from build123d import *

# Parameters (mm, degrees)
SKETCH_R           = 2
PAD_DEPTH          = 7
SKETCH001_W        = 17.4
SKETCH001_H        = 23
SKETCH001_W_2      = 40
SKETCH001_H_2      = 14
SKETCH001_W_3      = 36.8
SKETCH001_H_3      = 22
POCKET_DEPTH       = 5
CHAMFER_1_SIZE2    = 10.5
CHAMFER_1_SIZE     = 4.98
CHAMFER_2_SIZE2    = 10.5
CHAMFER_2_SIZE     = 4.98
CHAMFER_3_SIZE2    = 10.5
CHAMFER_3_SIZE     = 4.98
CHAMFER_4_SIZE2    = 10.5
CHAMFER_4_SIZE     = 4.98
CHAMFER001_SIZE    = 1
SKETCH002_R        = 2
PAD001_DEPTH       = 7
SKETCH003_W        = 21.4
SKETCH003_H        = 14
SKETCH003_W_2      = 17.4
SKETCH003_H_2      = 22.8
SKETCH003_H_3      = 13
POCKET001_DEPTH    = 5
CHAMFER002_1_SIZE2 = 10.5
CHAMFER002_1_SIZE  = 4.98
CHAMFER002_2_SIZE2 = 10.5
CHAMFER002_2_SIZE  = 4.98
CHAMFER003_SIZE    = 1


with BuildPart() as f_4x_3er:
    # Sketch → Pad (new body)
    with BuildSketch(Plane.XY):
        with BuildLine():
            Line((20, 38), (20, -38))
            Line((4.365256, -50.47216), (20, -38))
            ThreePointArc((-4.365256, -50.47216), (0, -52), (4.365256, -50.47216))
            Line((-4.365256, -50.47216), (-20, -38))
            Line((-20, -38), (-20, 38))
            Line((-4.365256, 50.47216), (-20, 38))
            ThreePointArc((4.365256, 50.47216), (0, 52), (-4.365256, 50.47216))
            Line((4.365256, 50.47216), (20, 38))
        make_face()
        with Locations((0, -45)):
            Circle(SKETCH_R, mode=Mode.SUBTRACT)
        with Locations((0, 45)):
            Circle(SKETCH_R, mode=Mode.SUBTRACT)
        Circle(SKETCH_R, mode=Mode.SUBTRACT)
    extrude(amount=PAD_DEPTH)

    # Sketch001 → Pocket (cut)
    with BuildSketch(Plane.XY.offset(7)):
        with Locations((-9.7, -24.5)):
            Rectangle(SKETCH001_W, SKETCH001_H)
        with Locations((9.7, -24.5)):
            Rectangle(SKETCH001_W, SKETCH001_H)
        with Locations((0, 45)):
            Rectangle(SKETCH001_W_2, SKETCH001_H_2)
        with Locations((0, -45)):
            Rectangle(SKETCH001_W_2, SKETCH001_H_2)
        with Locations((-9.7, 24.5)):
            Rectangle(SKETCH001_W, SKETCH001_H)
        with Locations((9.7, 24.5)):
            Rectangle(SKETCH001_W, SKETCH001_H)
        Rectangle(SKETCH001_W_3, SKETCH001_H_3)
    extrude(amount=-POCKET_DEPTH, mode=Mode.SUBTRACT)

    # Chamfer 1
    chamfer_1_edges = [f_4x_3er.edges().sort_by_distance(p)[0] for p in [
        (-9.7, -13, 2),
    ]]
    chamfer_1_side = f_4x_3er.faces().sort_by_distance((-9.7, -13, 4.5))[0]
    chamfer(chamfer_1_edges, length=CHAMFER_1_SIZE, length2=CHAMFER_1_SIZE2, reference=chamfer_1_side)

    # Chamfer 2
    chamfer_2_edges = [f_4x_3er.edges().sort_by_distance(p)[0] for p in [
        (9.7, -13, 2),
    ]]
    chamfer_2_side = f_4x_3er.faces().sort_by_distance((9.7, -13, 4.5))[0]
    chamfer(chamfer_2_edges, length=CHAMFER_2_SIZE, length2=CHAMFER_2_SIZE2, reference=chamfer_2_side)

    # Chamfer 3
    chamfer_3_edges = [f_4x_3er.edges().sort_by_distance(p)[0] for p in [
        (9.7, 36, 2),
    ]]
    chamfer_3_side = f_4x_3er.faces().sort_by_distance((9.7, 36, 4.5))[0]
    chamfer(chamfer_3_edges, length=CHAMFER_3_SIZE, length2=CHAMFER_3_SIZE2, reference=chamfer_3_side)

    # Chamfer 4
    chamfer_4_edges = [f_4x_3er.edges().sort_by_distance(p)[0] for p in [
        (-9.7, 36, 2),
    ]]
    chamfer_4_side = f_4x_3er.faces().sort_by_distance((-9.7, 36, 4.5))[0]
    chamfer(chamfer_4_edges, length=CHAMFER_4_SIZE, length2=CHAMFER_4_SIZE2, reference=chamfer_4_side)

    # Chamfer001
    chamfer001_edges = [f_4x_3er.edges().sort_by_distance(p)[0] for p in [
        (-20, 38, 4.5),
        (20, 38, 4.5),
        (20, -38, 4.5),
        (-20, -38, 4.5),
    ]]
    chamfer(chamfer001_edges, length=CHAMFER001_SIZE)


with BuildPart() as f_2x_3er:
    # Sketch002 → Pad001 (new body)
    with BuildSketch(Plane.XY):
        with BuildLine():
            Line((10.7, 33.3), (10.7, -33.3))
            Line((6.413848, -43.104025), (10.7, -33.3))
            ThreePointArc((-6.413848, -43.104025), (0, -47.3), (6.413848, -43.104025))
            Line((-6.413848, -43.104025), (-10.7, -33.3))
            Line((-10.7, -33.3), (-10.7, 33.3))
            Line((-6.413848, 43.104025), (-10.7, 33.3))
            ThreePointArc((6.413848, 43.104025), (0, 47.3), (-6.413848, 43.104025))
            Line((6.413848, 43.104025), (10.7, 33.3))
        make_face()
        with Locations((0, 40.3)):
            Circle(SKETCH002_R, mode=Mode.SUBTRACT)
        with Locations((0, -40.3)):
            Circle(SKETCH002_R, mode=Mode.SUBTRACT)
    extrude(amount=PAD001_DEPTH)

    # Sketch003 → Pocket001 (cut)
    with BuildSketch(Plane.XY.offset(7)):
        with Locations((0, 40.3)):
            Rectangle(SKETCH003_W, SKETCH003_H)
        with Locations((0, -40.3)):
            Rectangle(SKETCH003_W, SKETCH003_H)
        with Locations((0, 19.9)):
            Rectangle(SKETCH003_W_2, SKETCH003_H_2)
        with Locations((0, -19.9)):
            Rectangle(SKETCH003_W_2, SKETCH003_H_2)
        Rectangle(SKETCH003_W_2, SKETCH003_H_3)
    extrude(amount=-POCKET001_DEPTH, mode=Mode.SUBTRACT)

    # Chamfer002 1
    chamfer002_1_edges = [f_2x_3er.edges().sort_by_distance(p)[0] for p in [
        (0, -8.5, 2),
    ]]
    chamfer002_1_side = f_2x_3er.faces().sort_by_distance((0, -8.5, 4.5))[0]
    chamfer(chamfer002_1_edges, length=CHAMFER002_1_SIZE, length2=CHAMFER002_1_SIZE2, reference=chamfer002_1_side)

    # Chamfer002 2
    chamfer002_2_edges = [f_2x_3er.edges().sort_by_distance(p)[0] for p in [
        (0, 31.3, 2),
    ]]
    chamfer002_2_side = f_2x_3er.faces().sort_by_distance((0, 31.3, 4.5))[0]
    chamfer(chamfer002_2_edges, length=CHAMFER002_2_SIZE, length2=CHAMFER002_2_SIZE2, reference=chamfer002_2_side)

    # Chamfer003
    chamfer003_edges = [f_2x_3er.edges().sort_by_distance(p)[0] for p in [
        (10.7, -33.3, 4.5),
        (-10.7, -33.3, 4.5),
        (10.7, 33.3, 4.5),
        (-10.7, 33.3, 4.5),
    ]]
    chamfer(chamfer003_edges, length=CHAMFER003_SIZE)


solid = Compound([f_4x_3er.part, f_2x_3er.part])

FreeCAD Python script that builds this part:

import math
import FreeCAD as App
import Part
import Sketcher

V = App.Vector


def edges_at(feature, points):
    """Names of the edges that pass closest to the given points."""
    edges = feature.Shape.Edges
    near = lambda p: min(range(len(edges)), key=lambda i: edges[i].distToShape(Part.Vertex(*p))[0])
    return sorted({f"Edge{near(p) + 1}" for p in points})

doc = App.newDocument("Part")
params = doc.addObject("Spreadsheet::Sheet", "Params")
for row, (alias, value) in enumerate([
    ("sketch1_diameter", "4 mm"),
    ("sketch1_radius", "6.999998 mm"),
    ("sketch1_height", "76 mm"),
    ("sketch1_length", "20 mm"),
    ("pad1_length", "7 mm"),
    ("sketch2_width", "40 mm"),
    ("sketch2_height", "23 mm"),
    ("sketch2_height2", "14 mm"),
    ("sketch2_height3", "22 mm"),
    ("sketch2_width2", "17.4 mm"),
    ("pocket1_length", "5 mm"),
    ("chamfer_size", "4.98 mm"),
    ("chamfer_size2", "10.5 mm"),
    ("chamfer2_size", "4.98 mm"),
    ("chamfer2_size2", "10.5 mm"),
    ("chamfer3_size", "4.98 mm"),
    ("chamfer3_size2", "10.5 mm"),
    ("chamfer4_size", "4.98 mm"),
    ("chamfer4_size2", "10.5 mm"),
    ("chamfer5_size", "1 mm"),
    ("sketch3_diameter", "4 mm"),
    ("sketch3_radius", "7 mm"),
    ("sketch3_height", "66.6 mm"),
    ("sketch3_length", "10.7 mm"),
    ("pad2_length", "7 mm"),
    ("sketch4_height", "14 mm"),
    ("sketch4_height2", "13 mm"),
    ("sketch4_width", "21.4 mm"),
    ("sketch4_width2", "17.4 mm"),
    ("sketch4_height3", "22.8 mm"),
    ("pocket2_length", "5 mm"),
    ("chamfer6_size", "4.98 mm"),
    ("chamfer6_size2", "10.5 mm"),
    ("chamfer7_size", "4.98 mm"),
    ("chamfer7_size2", "10.5 mm"),
    ("chamfer8_size", "1 mm"),
], start=1):
    params.set(f"A{row}", alias)
    params.set(f"B{row}", "=" + value)
    params.setAlias(f"B{row}", alias)

body = doc.addObject("PartDesign::Body", "Body")

sketch1 = doc.addObject("Sketcher::SketchObject", "Sketch")
body.addObject(sketch1)
sketch1.AttachmentSupport = (doc.XY_Plane, [""])
sketch1.MapMode = "FlatFace"
sketch1.addGeometry([
    Part.LineSegment(V(20, -38, 0), V(20, 38, 0)),
    Part.LineSegment(V(20, 38, 0), V(4.4, 50.5, 0)),
    Part.ArcOfCircle(Part.Circle(V(0, 45, 0), V(0, 0, 1), 7), math.radians(51), math.radians(129)),
    Part.LineSegment(V(-4.4, 50.5, 0), V(-20, 38, 0)),
    Part.LineSegment(V(-20, 38, 0), V(-20, -38, 0)),
    Part.LineSegment(V(-20, -38, 0), V(-4.4, -50.5, 0)),
    Part.ArcOfCircle(Part.Circle(V(0, -45, 0), V(0, 0, 1), 7), math.radians(-129), math.radians(-51)),
    Part.LineSegment(V(4.4, -50.5, 0), V(20, -38, 0)),
    Part.Circle(V(0, -45, 0), V(0, 0, 1), 2),
    Part.Circle(V(0, 0, 0), V(0, 0, 1), 2),
    Part.Circle(V(0, 45, 0), V(0, 0, 1), 2),
], False)
sketch1.addConstraint([
    Sketcher.Constraint("Coincident", 0, 2, 1, 1),
    Sketcher.Constraint("Tangent", 1, 2, 2, 1),
    Sketcher.Constraint("Tangent", 2, 2, 3, 1),
    Sketcher.Constraint("Coincident", 3, 2, 4, 1),
    Sketcher.Constraint("Coincident", 4, 2, 5, 1),
    Sketcher.Constraint("Tangent", 5, 2, 6, 1),
    Sketcher.Constraint("Tangent", 6, 2, 7, 1),
    Sketcher.Constraint("Coincident", 7, 2, 0, 1),
    Sketcher.Constraint("Vertical", 0),
    Sketcher.Constraint("Vertical", 4),
    Sketcher.Constraint("Coincident", 9, 3, -1, 1),
    Sketcher.Constraint("Coincident", 8, 3, 6, 3),
    Sketcher.Constraint("Coincident", 10, 3, 2, 3),
    Sketcher.Constraint("Equal", 2, 6),
    Sketcher.Constraint("Equal", 8, 9),
    Sketcher.Constraint("Equal", 9, 10),
    Sketcher.Constraint("Symmetric", 2, 3, 6, 3, -1, 1),
    Sketcher.Constraint("Symmetric", 0, 2, 4, 2, -1, 1),
    Sketcher.Constraint("Symmetric", 1, 2, 2, 2, -2),
    Sketcher.Constraint("Parallel", 3, 7),
    Sketcher.Constraint("Diameter", 8, 4.0),
    Sketcher.Constraint("Radius", 2, 6.999998),
    Sketcher.Constraint("DistanceY", 0, 1, 0, 2, 76.0),
    Sketcher.Constraint("Distance", 1, 20.0),
    Sketcher.Constraint("DistanceY", -1, 1, 2, 3, 45.000002),
])
sketch1.setExpression("Constraints[20]", "Params.sketch1_diameter")
sketch1.setExpression("Constraints[21]", "Params.sketch1_radius")
sketch1.setExpression("Constraints[22]", "Params.sketch1_height")
sketch1.setExpression("Constraints[23]", "Params.sketch1_length")
pad1 = doc.addObject("PartDesign::Pad", "Pad")
body.addObject(pad1)
pad1.Profile = sketch1
pad1.setExpression("Length", "Params.pad1_length")

sketch2 = doc.addObject("Sketcher::SketchObject", "Sketch001")
body.addObject(sketch2)
sketch2.AttachmentSupport = (doc.XY_Plane, [""])
sketch2.MapMode = "FlatFace"
sketch2.AttachmentOffset = App.Placement(V(0, 0, 7), App.Rotation())
sketch2.addGeometry([
    Part.LineSegment(V(-18, -13, 0), V(-18, -36, 0)),
    Part.LineSegment(V(-18, -36, 0), V(-1, -36, 0)),
    Part.LineSegment(V(-1, -36, 0), V(-1, -13, 0)),
    Part.LineSegment(V(-1, -13, 0), V(-18, -13, 0)),
    Part.LineSegment(V(1, -13, 0), V(1, -36, 0)),
    Part.LineSegment(V(1, -36, 0), V(18, -36, 0)),
    Part.LineSegment(V(18, -36, 0), V(18, -13, 0)),
    Part.LineSegment(V(18, -13, 0), V(1, -13, 0)),
    Part.LineSegment(V(-20, 52, 0), V(-20, 38, 0)),
    Part.LineSegment(V(-20, 38, 0), V(20, 38, 0)),
    Part.LineSegment(V(20, 38, 0), V(20, 52, 0)),
    Part.LineSegment(V(20, 52, 0), V(-20, 52, 0)),
    Part.LineSegment(V(-20, -38, 0), V(-20, -52, 0)),
    Part.LineSegment(V(-20, -52, 0), V(20, -52, 0)),
    Part.LineSegment(V(20, -52, 0), V(20, -38, 0)),
    Part.LineSegment(V(20, -38, 0), V(-20, -38, 0)),
    Part.LineSegment(V(-18, 36, 0), V(-18, 13, 0)),
    Part.LineSegment(V(-18, 13, 0), V(-1, 13, 0)),
    Part.LineSegment(V(-1, 13, 0), V(-1, 36, 0)),
    Part.LineSegment(V(-1, 36, 0), V(-18, 36, 0)),
    Part.LineSegment(V(1, 36, 0), V(1, 13, 0)),
    Part.LineSegment(V(1, 13, 0), V(18, 13, 0)),
    Part.LineSegment(V(18, 13, 0), V(18, 36, 0)),
    Part.LineSegment(V(18, 36, 0), V(1, 36, 0)),
    Part.LineSegment(V(-18, 11, 0), V(-18, -11, 0)),
    Part.LineSegment(V(-18, -11, 0), V(18, -11, 0)),
    Part.LineSegment(V(18, -11, 0), V(18, 11, 0)),
    Part.LineSegment(V(18, 11, 0), V(-18, 11, 0)),
], False)
sketch2.addConstraint([
    Sketcher.Constraint("Coincident", 0, 2, 1, 1),
    Sketcher.Constraint("Coincident", 1, 2, 2, 1),
    Sketcher.Constraint("Coincident", 2, 2, 3, 1),
    Sketcher.Constraint("Coincident", 3, 2, 0, 1),
    Sketcher.Constraint("Coincident", 4, 2, 5, 1),
    Sketcher.Constraint("Coincident", 5, 2, 6, 1),
    Sketcher.Constraint("Coincident", 6, 2, 7, 1),
    Sketcher.Constraint("Coincident", 7, 2, 4, 1),
    Sketcher.Constraint("Coincident", 8, 2, 9, 1),
    Sketcher.Constraint("Coincident", 9, 2, 10, 1),
    Sketcher.Constraint("Coincident", 10, 2, 11, 1),
    Sketcher.Constraint("Coincident", 11, 2, 8, 1),
    Sketcher.Constraint("Coincident", 12, 2, 13, 1),
    Sketcher.Constraint("Coincident", 13, 2, 14, 1),
    Sketcher.Constraint("Coincident", 14, 2, 15, 1),
    Sketcher.Constraint("Coincident", 15, 2, 12, 1),
    Sketcher.Constraint("Coincident", 16, 2, 17, 1),
    Sketcher.Constraint("Coincident", 17, 2, 18, 1),
    Sketcher.Constraint("Coincident", 18, 2, 19, 1),
    Sketcher.Constraint("Coincident", 19, 2, 16, 1),
    Sketcher.Constraint("Coincident", 20, 2, 21, 1),
    Sketcher.Constraint("Coincident", 21, 2, 22, 1),
    Sketcher.Constraint("Coincident", 22, 2, 23, 1),
    Sketcher.Constraint("Coincident", 23, 2, 20, 1),
    Sketcher.Constraint("Coincident", 24, 2, 25, 1),
    Sketcher.Constraint("Coincident", 25, 2, 26, 1),
    Sketcher.Constraint("Coincident", 26, 2, 27, 1),
    Sketcher.Constraint("Coincident", 27, 2, 24, 1),
    Sketcher.Constraint("Vertical", 0),
    Sketcher.Constraint("Horizontal", 1),
    Sketcher.Constraint("Vertical", 2),
    Sketcher.Constraint("Horizontal", 3),
    Sketcher.Constraint("Vertical", 4),
    Sketcher.Constraint("Horizontal", 5),
    Sketcher.Constraint("Vertical", 6),
    Sketcher.Constraint("Horizontal", 7),
    Sketcher.Constraint("Vertical", 8),
    Sketcher.Constraint("Horizontal", 9),
    Sketcher.Constraint("Vertical", 10),
    Sketcher.Constraint("Horizontal", 11),
    Sketcher.Constraint("Vertical", 12),
    Sketcher.Constraint("Horizontal", 13),
    Sketcher.Constraint("Vertical", 14),
    Sketcher.Constraint("Horizontal", 15),
    Sketcher.Constraint("Vertical", 16),
    Sketcher.Constraint("Horizontal", 17),
    Sketcher.Constraint("Vertical", 18),
    Sketcher.Constraint("Horizontal", 19),
    Sketcher.Constraint("Vertical", 20),
    Sketcher.Constraint("Horizontal", 21),
    Sketcher.Constraint("Vertical", 22),
    Sketcher.Constraint("Horizontal", 23),
    Sketcher.Constraint("Vertical", 24),
    Sketcher.Constraint("Horizontal", 25),
    Sketcher.Constraint("Vertical", 26),
    Sketcher.Constraint("Horizontal", 27),
    Sketcher.Constraint("Symmetric", 10, 2, 12, 2, -1, 1),
    Sketcher.Constraint("Symmetric", 8, 2, 14, 2, -1, 1),
    Sketcher.Constraint("Symmetric", 6, 2, 16, 2, -1, 1),
    Sketcher.Constraint("Symmetric", 4, 2, 18, 2, -1, 1),
    Sketcher.Constraint("Symmetric", 2, 2, 20, 2, -1, 1),
    Sketcher.Constraint("Symmetric", 0, 2, 22, 2, -1, 1),
    Sketcher.Constraint("Symmetric", 24, 2, 26, 2, -1, 1),
    Sketcher.Constraint("Symmetric", 1, 2, 4, 2, -2),
    Sketcher.Constraint("Symmetric", 3, 2, 6, 2, -2),
    Sketcher.Constraint("Vertical", 11, 2, 12, 2),
    Sketcher.Constraint("Vertical", 19, 2, 24, 2),
    Sketcher.Constraint("DistanceX", 9, 1, 9, 2, 40.0),
    Sketcher.Constraint("DistanceY", 0, 2, 0, 1, 23.0),
    Sketcher.Constraint("DistanceY", 8, 2, 8, 1, 14.0),
    Sketcher.Constraint("DistanceY", 24, 2, 24, 1, 22.0),
    Sketcher.Constraint("DistanceX", 1, 1, 1, 2, 17.4),
    Sketcher.Constraint("DistanceX", 25, 1, 25, 2, 36.8),
    Sketcher.Constraint("DistanceY", 0, 2, -1, 1, 36.0),
    Sketcher.Constraint("DistanceY", -1, 1, 8, 2, 38.0),
])
sketch2.setExpression("Constraints[67]", "Params.sketch2_width")
sketch2.setExpression("Constraints[68]", "Params.sketch2_height")
sketch2.setExpression("Constraints[69]", "Params.sketch2_height2")
sketch2.setExpression("Constraints[70]", "Params.sketch2_height3")
sketch2.setExpression("Constraints[71]", "Params.sketch2_width2")
pocket1 = doc.addObject("PartDesign::Pocket", "Pocket")
body.addObject(pocket1)
pocket1.Profile = sketch2
pocket1.setExpression("Length", "Params.pocket1_length")
doc.recompute()

chamfer = doc.addObject("PartDesign::Chamfer", "Chamfer")
body.addObject(chamfer)
chamfer.Base = (pocket1, edges_at(pocket1, [(-9.7, -13, 2)]))
chamfer.ChamferType = "Two distances"
chamfer.setExpression("Size", "Params.chamfer_size")
chamfer.setExpression("Size2", "Params.chamfer_size2")
doc.recompute()

chamfer2 = doc.addObject("PartDesign::Chamfer", "Chamfer001")
body.addObject(chamfer2)
chamfer2.Base = (chamfer, edges_at(chamfer, [(9.7, -13, 2)]))
chamfer2.ChamferType = "Two distances"
chamfer2.setExpression("Size", "Params.chamfer2_size")
chamfer2.setExpression("Size2", "Params.chamfer2_size2")
doc.recompute()

chamfer3 = doc.addObject("PartDesign::Chamfer", "Chamfer002")
body.addObject(chamfer3)
chamfer3.Base = (chamfer2, edges_at(chamfer2, [(9.7, 36, 2)]))
chamfer3.ChamferType = "Two distances"
chamfer3.setExpression("Size", "Params.chamfer3_size")
chamfer3.setExpression("Size2", "Params.chamfer3_size2")
doc.recompute()

chamfer4 = doc.addObject("PartDesign::Chamfer", "Chamfer003")
body.addObject(chamfer4)
chamfer4.Base = (chamfer3, edges_at(chamfer3, [(-9.7, 36, 2)]))
chamfer4.ChamferType = "Two distances"
chamfer4.setExpression("Size", "Params.chamfer4_size")
chamfer4.setExpression("Size2", "Params.chamfer4_size2")
doc.recompute()

chamfer5 = doc.addObject("PartDesign::Chamfer", "Chamfer004")
body.addObject(chamfer5)
chamfer5.Base = (chamfer4, edges_at(chamfer4, [
    (-20, 38, 4.5),
    (20, 38, 4.5),
    (20, -38, 4.5),
    (-20, -38, 4.5),
]))
chamfer5.setExpression("Size", "Params.chamfer5_size")
body2 = doc.addObject("PartDesign::Body", "Body001")

sketch3 = doc.addObject("Sketcher::SketchObject", "Sketch002")
body2.addObject(sketch3)
sketch3.AttachmentSupport = (doc.getObject("XY_Plane001"), [""])
sketch3.MapMode = "FlatFace"
sketch3.addGeometry([
    Part.LineSegment(V(10.7, -33.3, 0), V(10.7, 33.3, 0)),
    Part.LineSegment(V(10.7, 33.3, 0), V(6.4, 43.1, 0)),
    Part.ArcOfCircle(Part.Circle(V(0, 40.3, 0), V(0, 0, 1), 7), math.radians(24), math.radians(156)),
    Part.LineSegment(V(-6.4, 43.1, 0), V(-10.7, 33.3, 0)),
    Part.LineSegment(V(-10.7, 33.3, 0), V(-10.7, -33.3, 0)),
    Part.LineSegment(V(-10.7, -33.3, 0), V(-6.4, -43.1, 0)),
    Part.ArcOfCircle(Part.Circle(V(0, -40.3, 0), V(0, 0, 1), 7), math.radians(-156), math.radians(-24)),
    Part.LineSegment(V(6.4, -43.1, 0), V(10.7, -33.3, 0)),
    Part.Circle(V(0, -40.3, 0), V(0, 0, 1), 2),
    Part.Circle(V(0, 40.3, 0), V(0, 0, 1), 2),
], False)
sketch3.addConstraint([
    Sketcher.Constraint("Coincident", 0, 2, 1, 1),
    Sketcher.Constraint("Tangent", 1, 2, 2, 1),
    Sketcher.Constraint("Tangent", 2, 2, 3, 1),
    Sketcher.Constraint("Coincident", 3, 2, 4, 1),
    Sketcher.Constraint("Coincident", 4, 2, 5, 1),
    Sketcher.Constraint("Tangent", 5, 2, 6, 1),
    Sketcher.Constraint("Tangent", 6, 2, 7, 1),
    Sketcher.Constraint("Coincident", 7, 2, 0, 1),
    Sketcher.Constraint("Vertical", 0),
    Sketcher.Constraint("Vertical", 4),
    Sketcher.Constraint("Coincident", 8, 3, 6, 3),
    Sketcher.Constraint("Coincident", 9, 3, 2, 3),
    Sketcher.Constraint("Equal", 2, 6),
    Sketcher.Constraint("Equal", 8, 9),
    Sketcher.Constraint("Symmetric", 2, 3, 6, 3, -1, 1),
    Sketcher.Constraint("Symmetric", 0, 2, 4, 2, -1, 1),
    Sketcher.Constraint("Symmetric", 1, 2, 2, 2, -2),
    Sketcher.Constraint("Parallel", 3, 7),
    Sketcher.Constraint("Diameter", 8, 4.0),
    Sketcher.Constraint("Radius", 2, 7.0),
    Sketcher.Constraint("DistanceY", 0, 1, 0, 2, 66.6),
    Sketcher.Constraint("DistanceY", 0, 2, 2, 3, 7.0),
    Sketcher.Constraint("Distance", 1, 10.7),
])
sketch3.setExpression("Constraints[18]", "Params.sketch3_diameter")
sketch3.setExpression("Constraints[19]", "Params.sketch3_radius")
sketch3.setExpression("Constraints[20]", "Params.sketch3_height")
sketch3.setExpression("Constraints[22]", "Params.sketch3_length")
pad2 = doc.addObject("PartDesign::Pad", "Pad001")
body2.addObject(pad2)
pad2.Profile = sketch3
pad2.setExpression("Length", "Params.pad2_length")

sketch4 = doc.addObject("Sketcher::SketchObject", "Sketch003")
body2.addObject(sketch4)
sketch4.AttachmentSupport = (doc.getObject("XY_Plane001"), [""])
sketch4.MapMode = "FlatFace"
sketch4.AttachmentOffset = App.Placement(V(0, 0, 7), App.Rotation())
sketch4.addGeometry([
    Part.LineSegment(V(-11, 47, 0), V(-11, 33, 0)),
    Part.LineSegment(V(-11, 33, 0), V(11, 33, 0)),
    Part.LineSegment(V(11, 33, 0), V(11, 47, 0)),
    Part.LineSegment(V(11, 47, 0), V(-11, 47, 0)),
    Part.LineSegment(V(-11, -33, 0), V(-11, -47, 0)),
    Part.LineSegment(V(-11, -47, 0), V(11, -47, 0)),
    Part.LineSegment(V(11, -47, 0), V(11, -33, 0)),
    Part.LineSegment(V(11, -33, 0), V(-11, -33, 0)),
    Part.LineSegment(V(-9, 31, 0), V(-9, 8, 0)),
    Part.LineSegment(V(-9, 8, 0), V(9, 8, 0)),
    Part.LineSegment(V(9, 8, 0), V(9, 31, 0)),
    Part.LineSegment(V(9, 31, 0), V(-9, 31, 0)),
    Part.LineSegment(V(-9, -8, 0), V(-9, -31, 0)),
    Part.LineSegment(V(-9, -31, 0), V(9, -31, 0)),
    Part.LineSegment(V(9, -31, 0), V(9, -8, 0)),
    Part.LineSegment(V(9, -8, 0), V(-9, -8, 0)),
    Part.LineSegment(V(-9, 6, 0), V(-9, -6, 0)),
    Part.LineSegment(V(-9, -6, 0), V(9, -6, 0)),
    Part.LineSegment(V(9, -6, 0), V(9, 6, 0)),
    Part.LineSegment(V(9, 6, 0), V(-9, 6, 0)),
], False)
sketch4.addConstraint([
    Sketcher.Constraint("Coincident", 0, 2, 1, 1),
    Sketcher.Constraint("Coincident", 1, 2, 2, 1),
    Sketcher.Constraint("Coincident", 2, 2, 3, 1),
    Sketcher.Constraint("Coincident", 3, 2, 0, 1),
    Sketcher.Constraint("Coincident", 4, 2, 5, 1),
    Sketcher.Constraint("Coincident", 5, 2, 6, 1),
    Sketcher.Constraint("Coincident", 6, 2, 7, 1),
    Sketcher.Constraint("Coincident", 7, 2, 4, 1),
    Sketcher.Constraint("Coincident", 8, 2, 9, 1),
    Sketcher.Constraint("Coincident", 9, 2, 10, 1),
    Sketcher.Constraint("Coincident", 10, 2, 11, 1),
    Sketcher.Constraint("Coincident", 11, 2, 8, 1),
    Sketcher.Constraint("Coincident", 12, 2, 13, 1),
    Sketcher.Constraint("Coincident", 13, 2, 14, 1),
    Sketcher.Constraint("Coincident", 14, 2, 15, 1),
    Sketcher.Constraint("Coincident", 15, 2, 12, 1),
    Sketcher.Constraint("Coincident", 16, 2, 17, 1),
    Sketcher.Constraint("Coincident", 17, 2, 18, 1),
    Sketcher.Constraint("Coincident", 18, 2, 19, 1),
    Sketcher.Constraint("Coincident", 19, 2, 16, 1),
    Sketcher.Constraint("Vertical", 0),
    Sketcher.Constraint("Horizontal", 1),
    Sketcher.Constraint("Vertical", 2),
    Sketcher.Constraint("Horizontal", 3),
    Sketcher.Constraint("Vertical", 4),
    Sketcher.Constraint("Horizontal", 5),
    Sketcher.Constraint("Vertical", 6),
    Sketcher.Constraint("Horizontal", 7),
    Sketcher.Constraint("Vertical", 8),
    Sketcher.Constraint("Horizontal", 9),
    Sketcher.Constraint("Vertical", 10),
    Sketcher.Constraint("Horizontal", 11),
    Sketcher.Constraint("Vertical", 12),
    Sketcher.Constraint("Horizontal", 13),
    Sketcher.Constraint("Vertical", 14),
    Sketcher.Constraint("Horizontal", 15),
    Sketcher.Constraint("Vertical", 16),
    Sketcher.Constraint("Horizontal", 17),
    Sketcher.Constraint("Vertical", 18),
    Sketcher.Constraint("Horizontal", 19),
    Sketcher.Constraint("Symmetric", 2, 2, 4, 2, -1, 1),
    Sketcher.Constraint("Symmetric", 0, 2, 6, 2, -1, 1),
    Sketcher.Constraint("Symmetric", 10, 2, 12, 2, -1, 1),
    Sketcher.Constraint("Symmetric", 8, 2, 14, 2, -1, 1),
    Sketcher.Constraint("Symmetric", 16, 2, 18, 2, -1, 1),
    Sketcher.Constraint("Vertical", 3, 2, 4, 2),
    Sketcher.Constraint("Vertical", 11, 2, 12, 2),
    Sketcher.Constraint("Vertical", 15, 2, 16, 2),
    Sketcher.Constraint("DistanceY", 0, 2, 0, 1, 14.0),
    Sketcher.Constraint("DistanceY", 16, 2, 16, 1, 13.0),
    Sketcher.Constraint("DistanceX", 1, 1, 1, 2, 21.4),
    Sketcher.Constraint("DistanceX", 9, 1, 9, 2, 17.4),
    Sketcher.Constraint("DistanceY", 8, 2, 8, 1, 22.8),
    Sketcher.Constraint("DistanceY", 10, 2, 1, 2, 2.0),
    Sketcher.Constraint("DistanceY", 14, 2, 9, 2, 17.0),
])
sketch4.setExpression("Constraints[48]", "Params.sketch4_height")
sketch4.setExpression("Constraints[49]", "Params.sketch4_height2")
sketch4.setExpression("Constraints[50]", "Params.sketch4_width")
sketch4.setExpression("Constraints[51]", "Params.sketch4_width2")
sketch4.setExpression("Constraints[52]", "Params.sketch4_height3")
pocket2 = doc.addObject("PartDesign::Pocket", "Pocket001")
body2.addObject(pocket2)
pocket2.Profile = sketch4
pocket2.setExpression("Length", "Params.pocket2_length")
doc.recompute()

chamfer6 = doc.addObject("PartDesign::Chamfer", "Chamfer005")
body2.addObject(chamfer6)
chamfer6.Base = (pocket2, edges_at(pocket2, [(0, -8.5, 2)]))
chamfer6.ChamferType = "Two distances"
chamfer6.setExpression("Size", "Params.chamfer6_size")
chamfer6.setExpression("Size2", "Params.chamfer6_size2")
doc.recompute()

chamfer7 = doc.addObject("PartDesign::Chamfer", "Chamfer006")
body2.addObject(chamfer7)
chamfer7.Base = (chamfer6, edges_at(chamfer6, [(0, 31.3, 2)]))
chamfer7.ChamferType = "Two distances"
chamfer7.setExpression("Size", "Params.chamfer7_size")
chamfer7.setExpression("Size2", "Params.chamfer7_size2")
doc.recompute()

chamfer8 = doc.addObject("PartDesign::Chamfer", "Chamfer007")
body2.addObject(chamfer8)
chamfer8.Base = (chamfer7, edges_at(chamfer7, [
    (10.7, -33.3, 4.5),
    (-10.7, -33.3, 4.5),
    (10.7, 33.3, 4.5),
    (-10.7, 33.3, 4.5),
]))
chamfer8.setExpression("Size", "Params.chamfer8_size")

doc.recompute()
